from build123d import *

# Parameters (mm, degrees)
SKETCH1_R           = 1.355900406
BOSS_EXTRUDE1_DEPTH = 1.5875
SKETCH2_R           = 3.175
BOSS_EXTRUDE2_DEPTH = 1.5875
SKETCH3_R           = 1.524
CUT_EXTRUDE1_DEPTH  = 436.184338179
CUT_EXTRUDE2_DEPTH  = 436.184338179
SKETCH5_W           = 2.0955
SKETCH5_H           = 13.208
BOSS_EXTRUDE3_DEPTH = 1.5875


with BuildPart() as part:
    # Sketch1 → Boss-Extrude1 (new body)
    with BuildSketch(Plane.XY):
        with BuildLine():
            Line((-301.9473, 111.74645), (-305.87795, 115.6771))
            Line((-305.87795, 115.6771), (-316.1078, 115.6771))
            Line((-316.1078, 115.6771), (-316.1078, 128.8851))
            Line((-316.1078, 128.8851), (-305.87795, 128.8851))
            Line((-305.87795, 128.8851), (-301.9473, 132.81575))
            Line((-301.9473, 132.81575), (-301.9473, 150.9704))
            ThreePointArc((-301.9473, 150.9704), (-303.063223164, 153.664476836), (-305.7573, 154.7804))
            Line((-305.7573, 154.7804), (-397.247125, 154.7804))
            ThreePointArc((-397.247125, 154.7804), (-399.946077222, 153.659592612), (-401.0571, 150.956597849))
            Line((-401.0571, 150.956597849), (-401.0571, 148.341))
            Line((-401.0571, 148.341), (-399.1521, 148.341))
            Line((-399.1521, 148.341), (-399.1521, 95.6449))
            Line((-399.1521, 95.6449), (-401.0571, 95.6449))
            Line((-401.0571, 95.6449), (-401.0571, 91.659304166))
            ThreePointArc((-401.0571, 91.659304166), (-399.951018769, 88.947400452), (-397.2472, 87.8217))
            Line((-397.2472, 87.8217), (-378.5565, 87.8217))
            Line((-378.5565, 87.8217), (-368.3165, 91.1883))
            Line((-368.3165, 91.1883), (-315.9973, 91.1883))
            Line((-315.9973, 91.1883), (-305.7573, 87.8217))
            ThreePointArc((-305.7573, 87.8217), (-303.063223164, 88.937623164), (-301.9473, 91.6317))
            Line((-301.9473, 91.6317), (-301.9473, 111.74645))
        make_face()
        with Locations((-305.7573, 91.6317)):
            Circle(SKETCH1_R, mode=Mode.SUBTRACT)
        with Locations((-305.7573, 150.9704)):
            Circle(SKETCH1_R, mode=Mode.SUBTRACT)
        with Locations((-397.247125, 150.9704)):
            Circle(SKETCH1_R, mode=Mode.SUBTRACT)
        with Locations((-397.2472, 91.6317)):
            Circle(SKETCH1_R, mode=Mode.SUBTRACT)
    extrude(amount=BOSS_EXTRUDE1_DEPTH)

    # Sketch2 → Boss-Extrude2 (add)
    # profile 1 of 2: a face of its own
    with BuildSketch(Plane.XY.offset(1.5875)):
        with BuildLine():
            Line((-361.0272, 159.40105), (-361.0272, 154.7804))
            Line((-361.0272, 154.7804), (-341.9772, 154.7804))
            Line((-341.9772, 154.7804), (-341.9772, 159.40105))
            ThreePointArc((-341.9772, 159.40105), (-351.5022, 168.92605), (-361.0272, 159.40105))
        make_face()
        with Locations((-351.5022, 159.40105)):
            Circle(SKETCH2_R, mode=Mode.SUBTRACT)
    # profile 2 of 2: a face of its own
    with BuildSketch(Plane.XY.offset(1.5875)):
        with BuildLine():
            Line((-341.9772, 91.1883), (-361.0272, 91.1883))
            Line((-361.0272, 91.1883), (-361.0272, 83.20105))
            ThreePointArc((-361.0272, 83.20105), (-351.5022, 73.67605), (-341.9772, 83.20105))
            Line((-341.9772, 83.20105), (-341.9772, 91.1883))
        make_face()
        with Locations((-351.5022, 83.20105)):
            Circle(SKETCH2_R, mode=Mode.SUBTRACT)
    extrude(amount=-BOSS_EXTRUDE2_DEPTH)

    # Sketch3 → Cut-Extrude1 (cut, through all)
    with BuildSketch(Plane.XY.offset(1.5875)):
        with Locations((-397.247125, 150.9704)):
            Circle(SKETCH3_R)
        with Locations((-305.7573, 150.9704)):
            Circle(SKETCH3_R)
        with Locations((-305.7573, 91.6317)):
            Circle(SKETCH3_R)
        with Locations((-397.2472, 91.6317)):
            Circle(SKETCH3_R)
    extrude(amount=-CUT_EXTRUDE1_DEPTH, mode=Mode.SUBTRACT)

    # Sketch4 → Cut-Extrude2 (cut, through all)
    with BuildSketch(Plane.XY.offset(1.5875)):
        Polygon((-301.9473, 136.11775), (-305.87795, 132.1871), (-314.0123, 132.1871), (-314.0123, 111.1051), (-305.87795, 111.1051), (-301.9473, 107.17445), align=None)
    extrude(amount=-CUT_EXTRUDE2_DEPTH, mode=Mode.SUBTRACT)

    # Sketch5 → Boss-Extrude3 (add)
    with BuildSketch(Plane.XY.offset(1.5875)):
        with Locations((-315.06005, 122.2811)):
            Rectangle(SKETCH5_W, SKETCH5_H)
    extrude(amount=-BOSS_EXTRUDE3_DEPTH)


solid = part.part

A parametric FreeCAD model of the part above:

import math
import FreeCAD as App
import Part
import Sketcher
Q = App.Units.Quantity

doc = App.newDocument("Part")
body = doc.addObject("PartDesign::Body", "Body")

sketch1 = doc.addObject("Sketcher::SketchObject", "Sketch")
body.addObject(sketch1)
sketch1.AttachmentSupport = (doc.XY_Plane, [""])
sketch1.MapMode = "FlatFace"
sketch1.addGeometry([
    Part.LineSegment(App.Vector(-301.9473, 111.74645, 0), App.Vector(-305.87795, 115.6771, 0)),
    Part.LineSegment(App.Vector(-305.87795, 115.6771, 0), App.Vector(-316.1078, 115.6771, 0)),
    Part.LineSegment(App.Vector(-316.1078, 115.6771, 0), App.Vector(-316.1078, 128.8851, 0)),
    Part.LineSegment(App.Vector(-316.1078, 128.8851, 0), App.Vector(-305.87795, 128.8851, 0)),
    Part.LineSegment(App.Vector(-305.87795, 128.8851, 0), App.Vector(-301.9473, 132.81575, 0)),
    Part.LineSegment(App.Vector(-301.9473, 132.81575, 0), App.Vector(-301.9473, 150.9704, 0)),
    Part.ArcOfCircle(Part.Circle(App.Vector(-305.7573, 150.9704, 0), App.Vector(0, 0, 1), 3.81), math.radians(0), math.radians(90)),
    Part.LineSegment(App.Vector(-305.7573, 154.7804, 0), App.Vector(-397.247125, 154.7804, 0)),
    Part.ArcOfCircle(Part.Circle(App.Vector(-397.247125, 150.9704, 0), App.Vector(0, 0, 1), 3.81), math.radians(90), math.radians(180.207561)),
    Part.LineSegment(App.Vector(-401.0571, 150.956598, 0), App.Vector(-401.0571, 148.341, 0)),
    Part.LineSegment(App.Vector(-401.0571, 148.341, 0), App.Vector(-399.1521, 148.341, 0)),
    Part.LineSegment(App.Vector(-399.1521, 148.341, 0), App.Vector(-399.1521, 95.6449, 0)),
    Part.LineSegment(App.Vector(-399.1521, 95.6449, 0), App.Vector(-401.0571, 95.6449, 0)),
    Part.LineSegment(App.Vector(-401.0571, 95.6449, 0), App.Vector(-401.0571, 91.659304, 0)),
    Part.ArcOfCircle(Part.Circle(App.Vector(-397.2472, 91.6317, 0), App.Vector(0, 0, 1), 3.81), math.radians(179.584878), math.radians(270)),
    Part.LineSegment(App.Vector(-397.2472, 87.8217, 0), App.Vector(-378.5565, 87.8217, 0)),
    Part.LineSegment(App.Vector(-378.5565, 87.8217, 0), App.Vector(-368.3165, 91.1883, 0)),
    Part.LineSegment(App.Vector(-368.3165, 91.1883, 0), App.Vector(-315.9973, 91.1883, 0)),
    Part.LineSegment(App.Vector(-315.9973, 91.1883, 0), App.Vector(-305.7573, 87.8217, 0)),
    Part.ArcOfCircle(Part.Circle(App.Vector(-305.7573, 91.6317, 0), App.Vector(0, 0, 1), 3.81), math.radians(-90), math.radians(0)),
    Part.LineSegment(App.Vector(-301.9473, 91.6317, 0), App.Vector(-301.9473, 111.74645, 0)),
    Part.Circle(App.Vector(-397.2472, 91.6317, 0), App.Vector(0, 0, 1), 1.3559),
    Part.Circle(App.Vector(-305.7573, 91.6317, 0), App.Vector(0, 0, 1), 1.3559),
    Part.Circle(App.Vector(-397.247125, 150.9704, 0), App.Vector(0, 0, 1), 1.3559),
    Part.Circle(App.Vector(-305.7573, 150.9704, 0), App.Vector(0, 0, 1), 1.3559),
], False)
sketch1.addConstraint([
    Sketcher.Constraint("Coincident", 0, 2, 1, 1),
    Sketcher.Constraint("Coincident", 1, 2, 2, 1),
    Sketcher.Constraint("Coincident", 2, 2, 3, 1),
    Sketcher.Constraint("Coincident", 3, 2, 4, 1),
    Sketcher.Constraint("Coincident", 4, 2, 5, 1),
    Sketcher.Constraint("Tangent", 5, 2, 6, 1),
    Sketcher.Constraint("Tangent", 6, 2, 7, 1),
    Sketcher.Constraint("Tangent", 7, 2, 8, 1),
    Sketcher.Constraint("Coincident", 8, 2, 9, 1),
    Sketcher.Constraint("Coincident", 9, 2, 10, 1),
    Sketcher.Constraint("Coincident", 10, 2, 11, 1),
    Sketcher.Constraint("Coincident", 11, 2, 12, 1),
    Sketcher.Constraint("Coincident", 12, 2, 13, 1),
    Sketcher.Constraint("Coincident", 13, 2, 14, 1),
    Sketcher.Constraint("Tangent", 14, 2, 15, 1),
    Sketcher.Constraint("Coincident", 15, 2, 16, 1),
    Sketcher.Constraint("Coincident", 16, 2, 17, 1),
    Sketcher.Constraint("Coincident", 17, 2, 18, 1),
    Sketcher.Constraint("Coincident", 18, 2, 19, 1),
    Sketcher.Constraint("Tangent", 19, 2, 20, 1),
    Sketcher.Constraint("Coincident", 20, 2, 0, 1),
    Sketcher.Constraint("Horizontal", 1),
    Sketcher.Constraint("Vertical", 2),
    Sketcher.Constraint("Horizontal", 3),
    Sketcher.Constraint("Vertical", 5),
    Sketcher.Constraint("Horizontal", 7),
    Sketcher.Constraint("Vertical", 9),
    Sketcher.Constraint("Horizontal", 10),
    Sketcher.Constraint("Vertical", 11),
    Sketcher.Constraint("Horizontal", 12),
    Sketcher.Constraint("Vertical", 13),
    Sketcher.Constraint("Horizontal", 15),
    Sketcher.Constraint("Horizontal", 17),
    Sketcher.Constraint("Vertical", 20),
    Sketcher.Constraint("Coincident", 21, 3, 14, 3),
    Sketcher.Constraint("Coincident", 22, 3, 19, 3),
    Sketcher.Constraint("Coincident", 23, 3, 8, 3),
    Sketcher.Constraint("Coincident", 24, 3, 6, 3),
    Sketcher.Constraint("Equal", 6, 8),
    Sketcher.Constraint("Equal", 8, 14),
    Sketcher.Constraint("Equal", 14, 19),
    Sketcher.Constraint("Equal", 21, 22),
    Sketcher.Constraint("Equal", 22, 23),
    Sketcher.Constraint("Equal", 23, 24),
    Sketcher.Constraint("Perpendicular", 0, 4),
    Sketcher.Constraint("Horizontal", 14, 3, 19, 3),
    Sketcher.Constraint("Vertical", 6, 3, 19, 3),
    Sketcher.Constraint("Vertical", 0, 2, 3, 2),
    Sketcher.Constraint("Vertical", 9, 2, 12, 2),
    Sketcher.Constraint("Vertical", 6, 2, 18, 2),
    Sketcher.Constraint("Equal", 0, 4),
    Sketcher.Constraint("Equal", 16, 18),
    Sketcher.Constraint("Radius", 6, Q("0.15 in")),
    Sketcher.Constraint("DistanceY", 2, 1, 2, 2, Q("0.52 in")),
    Sketcher.Constraint("Diameter", 21, 2.711801),
    Sketcher.Constraint("DistanceX", 10, 1, 10, 2, Q("0.075 in")),
    Sketcher.Constraint("DistanceY", 14, 3, 11, 2, Q("0.158 in")),
    Sketcher.Constraint("DistanceX", 11, 2, 16, 2, Q("1.214 in")),
    Sketcher.Constraint("DistanceX", 15, 1, 15, 2, 18.6907),
    Sketcher.Constraint("DistanceX", 17, 1, 17, 2, 52.3192),
    Sketcher.Constraint("DistanceY", 11, 2, 11, 1, 52.6961),
    Sketcher.Constraint("DistanceY", 0, 2, 6, 3, Q("1.3895 in")),
    Sketcher.Constraint("DistanceX", 1, 2, 19, 3, Q("0.4075 in")),
    Sketcher.Constraint("DistanceX", 1, 2, 1, 1, 10.22985),
    Sketcher.Constraint("DistanceY", 20, 1, 20, 2, 20.11475),
    Sketcher.Constraint("DistanceX", 6, 3, -1, 1, 305.7573),
    Sketcher.Constraint("DistanceY", -1, 1, 6, 3, 150.9704),
    Sketcher.Constraint("DistanceX", 14, 3, -1, 1, 397.2472),
    Sketcher.Constraint("DistanceY", -1, 1, 16, 2, 91.1883),
    Sketcher.Constraint("DistanceX", 7, 2, 7, 1, 91.489825),
])
pad1 = doc.addObject("PartDesign::Pad", "Pad")
body.addObject(pad1)
pad1.Profile = sketch1
pad1.Length = Q("0.0625 in")

sketch2 = doc.addObject("Sketcher::SketchObject", "Sketch001")
body.addObject(sketch2)
sketch2.AttachmentSupport = (doc.XY_Plane, [""])
sketch2.MapMode = "FlatFace"
sketch2.AttachmentOffset = App.Placement(App.Vector(0, 0, 0.0625 * 25.4), App.Rotation())
sketch2.addGeometry([
    Part.LineSegment(App.Vector(-361.0272, 159.40105, 0), App.Vector(-361.0272, 154.7804, 0)),
    Part.LineSegment(App.Vector(-361.0272, 154.7804, 0), App.Vector(-341.9772, 154.7804, 0)),
    Part.LineSegment(App.Vector(-341.9772, 154.7804, 0), App.Vector(-341.9772, 159.40105, 0)),
    Part.ArcOfCircle(Part.Circle(App.Vector(-351.5022, 159.40105, 0), App.Vector(0, 0, 1), 9.525), math.radians(0), math.radians(180)),
    Part.Circle(App.Vector(-351.5022, 159.40105, 0), App.Vector(0, 0, 1), 3.175),
    Part.LineSegment(App.Vector(-341.9772, 91.1883, 0), App.Vector(-361.0272, 91.1883, 0)),
    Part.LineSegment(App.Vector(-361.0272, 91.1883, 0), App.Vector(-361.0272, 83.20105, 0)),
    Part.ArcOfCircle(Part.Circle(App.Vector(-351.5022, 83.20105, 0), App.Vector(0, 0, 1), 9.525), math.radians(180), math.radians(360)),
    Part.LineSegment(App.Vector(-341.9772, 83.20105, 0), App.Vector(-341.9772, 91.1883, 0)),
    Part.Circle(App.Vector(-351.5022, 83.20105, 0), App.Vector(0, 0, 1), 3.175),
], False)
sketch2.addConstraint([
    Sketcher.Constraint("Coincident", 0, 2, 1, 1),
    Sketcher.Constraint("Coincident", 1, 2, 2, 1),
    Sketcher.Constraint("Tangent", 2, 2, 3, 1),
    Sketcher.Constraint("Tangent", 3, 2, 0, 1),
    Sketcher.Constraint("Coincident", 5, 2, 6, 1),
    Sketcher.Constraint("Tangent", 6, 2, 7, 1),
    Sketcher.Constraint("Tangent", 7, 2, 8, 1),
    Sketcher.Constraint("Coincident", 8, 2, 5, 1),
    Sketcher.Constraint("Vertical", 0),
    Sketcher.Constraint("Horizontal", 1),
    Sketcher.Constraint("Vertical", 2),
    Sketcher.Constraint("Horizontal", 5),
    Sketcher.Constraint("Vertical", 6),
    Sketcher.Constraint("Vertical", 8),
    Sketcher.Constraint("Coincident", 4, 3, 3, 3),
    Sketcher.Constraint("Coincident", 9, 3, 7, 3),
    Sketcher.Constraint("Equal", 3, 7),
    Sketcher.Constraint("Equal", 4, 9),
    Sketcher.Constraint("Vertical", 4, 3, 7, 3),
    Sketcher.Constraint("Diameter", 4, Q("0.25 in")),
    Sketcher.Constraint("Radius", 3, Q("0.375 in")),
    Sketcher.Constraint("DistanceY", 7, 3, 3, 3, Q("3 in")),
    Sketcher.Constraint("DistanceY", 0, 2, 0, 1, 4.62065),
    Sketcher.Constraint("DistanceY", 6, 2, 6, 1, 7.98725),
    Sketcher.Constraint("DistanceX", 3, 3, -1, 1, 351.5022),
    Sketcher.Constraint("DistanceY", -1, 1, 0, 2, 154.7804),
])
pad2 = doc.addObject("PartDesign::Pad", "Pad001")
body.addObject(pad2)
pad2.Profile = sketch2
pad2.Length = Q("0.0625 in")
pad2.Reversed = True

sketch3 = doc.addObject("Sketcher::SketchObject", "Sketch002")
body.addObject(sketch3)
sketch3.AttachmentSupport = (doc.XY_Plane, [""])
sketch3.MapMode = "FlatFace"
sketch3.AttachmentOffset = App.Placement(App.Vector(0, 0, 0.0625 * 25.4), App.Rotation())
sketch3.addGeometry([
    Part.Circle(App.Vector(-397.247125, 150.9704, 0), App.Vector(0, 0, 1), 1.524),
    Part.Circle(App.Vector(-305.7573, 150.9704, 0), App.Vector(0, 0, 1), 1.524),
    Part.Circle(App.Vector(-305.7573, 91.6317, 0), App.Vector(0, 0, 1), 1.524),
    Part.Circle(App.Vector(-397.2472, 91.6317, 0), App.Vector(0, 0, 1), 1.524),
], False)
sketch3.addConstraint([
    Sketcher.Constraint("Equal", 0, 1),
    Sketcher.Constraint("Equal", 1, 2),
    Sketcher.Constraint("Equal", 2, 3),
    Sketcher.Constraint("Horizontal", 0, 3, 1, 3),
    Sketcher.Constraint("Horizontal", 2, 3, 3, 3),
    Sketcher.Constraint("Vertical", 1, 3, 2, 3),
    Sketcher.Constraint("Diameter", 0, Q("0.12 in")),
    Sketcher.Constraint("DistanceY", -1, 1, 0, 3, 150.9704),
    Sketcher.Constraint("DistanceX", 1, 3, -1, 1, 305.7573),
    Sketcher.Constraint("DistanceY", -1, 1, 2, 3, 91.6317),
    Sketcher.Constraint("DistanceX", 3, 3, -1, 1, 397.2472),
    Sketcher.Constraint("DistanceX", 0, 3, -1, 1, 397.247125),
])
pocket1 = doc.addObject("PartDesign::Pocket", "Pocket")
body.addObject(pocket1)
pocket1.Profile = sketch3
pocket1.Type = "ThroughAll"

sketch4 = doc.addObject("Sketcher::SketchObject", "Sketch003")
body.addObject(sketch4)
sketch4.AttachmentSupport = (doc.XY_Plane, [""])
sketch4.MapMode = "FlatFace"
sketch4.AttachmentOffset = App.Placement(App.Vector(0, 0, 0.0625 * 25.4), App.Rotation())
sketch4.addGeometry([
    Part.LineSegment(App.Vector(-301.9473, 136.11775, 0), App.Vector(-305.87795, 132.1871, 0)),
    Part.LineSegment(App.Vector(-305.87795, 132.1871, 0), App.Vector(-314.0123, 132.1871, 0)),
    Part.LineSegment(App.Vector(-314.0123, 132.1871, 0), App.Vector(-314.0123, 111.1051, 0)),
    Part.LineSegment(App.Vector(-314.0123, 111.1051, 0), App.Vector(-305.87795, 111.1051, 0)),
    Part.LineSegment(App.Vector(-305.87795, 111.1051, 0), App.Vector(-301.9473, 107.17445, 0)),
    Part.LineSegment(App.Vector(-301.9473, 107.17445, 0), App.Vector(-301.9473, 136.11775, 0)),
], False)
sketch4.addConstraint([
    Sketcher.Constraint("Coincident", 0, 2, 1, 1),
    Sketcher.Constraint("Coincident", 1, 2, 2, 1),
    Sketcher.Constraint("Coincident", 2, 2, 3, 1),
    Sketcher.Constraint("Coincident", 3, 2, 4, 1),
    Sketcher.Constraint("Coincident", 4, 2, 5, 1),
    Sketcher.Constraint("Coincident", 5, 2, 0, 1),
    Sketcher.Constraint("Horizontal", 1),
    Sketcher.Constraint("Vertical", 2),
    Sketcher.Constraint("Horizontal", 3),
    Sketcher.Constraint("Vertical", 5),
    Sketcher.Constraint("Perpendicular", 0, 4),
    Sketcher.Constraint("Vertical", 0, 2, 3, 2),
    Sketcher.Constraint("Equal", 0, 4),
    Sketcher.Constraint("DistanceY", 2, 2, 2, 1, Q("0.83 in")),
    Sketcher.Constraint("DistanceY", 5, 1, 5, 2, Q("1.1395 in")),
    Sketcher.Constraint("DistanceX", 2, 2, 4, 2, Q("0.475 in")),
    Sketcher.Constraint("DistanceY", -1, 1, 0, 2, 132.1871),
    Sketcher.Constraint("DistanceX", 1, 2, -1, 1, 314.0123),
])
pocket2 = doc.addObject("PartDesign::Pocket", "Pocket001")
body.addObject(pocket2)
pocket2.Profile = sketch4
pocket2.Type = "ThroughAll"

sketch5 = doc.addObject("Sketcher::SketchObject", "Sketch004")
body.addObject(sketch5)
sketch5.AttachmentSupport = (doc.XY_Plane, [""])
sketch5.MapMode = "FlatFace"
sketch5.AttachmentOffset = App.Placement(App.Vector(0, 0, 0.0625 * 25.4), App.Rotation())
sketch5.addGeometry([
    Part.LineSegment(App.Vector(-316.1078, 128.8851, 0), App.Vector(-316.1078, 115.6771, 0)),
    Part.LineSegment(App.Vector(-316.1078, 115.6771, 0), App.Vector(-314.0123, 115.6771, 0)),
    Part.LineSegment(App.Vector(-314.0123, 115.6771, 0), App.Vector(-314.0123, 128.8851, 0)),
    Part.LineSegment(App.Vector(-314.0123, 128.8851, 0), App.Vector(-316.1078, 128.8851, 0)),
], False)
sketch5.addConstraint([
    Sketcher.Constraint("Coincident", 0, 2, 1, 1),
    Sketcher.Constraint("Coincident", 1, 2, 2, 1),
    Sketcher.Constraint("Coincident", 2, 2, 3, 1),
    Sketcher.Constraint("Coincident", 3, 2, 0, 1),
    Sketcher.Constraint("Vertical", 0),
    Sketcher.Constraint("Horizontal", 1),
    Sketcher.Constraint("Vertical", 2),
    Sketcher.Constraint("Horizontal", 3),
    Sketcher.Constraint("DistanceY", 0, 2, 0, 1, Q("0.52 in")),
    Sketcher.Constraint("DistanceX", 1, 1, 1, 2, Q("0.0825 in")),
    Sketcher.Constraint("DistanceX", 0, 2, -1, 1, 316.1078),
    Sketcher.Constraint("DistanceY", -1, 1, 0, 2, 115.6771),
])
pad3 = doc.addObject("PartDesign::Pad", "Pad002")
body.addObject(pad3)
pad3.Profile = sketch5
pad3.Length = Q("0.0625 in")
pad3.Reversed = True

doc.recompute()
